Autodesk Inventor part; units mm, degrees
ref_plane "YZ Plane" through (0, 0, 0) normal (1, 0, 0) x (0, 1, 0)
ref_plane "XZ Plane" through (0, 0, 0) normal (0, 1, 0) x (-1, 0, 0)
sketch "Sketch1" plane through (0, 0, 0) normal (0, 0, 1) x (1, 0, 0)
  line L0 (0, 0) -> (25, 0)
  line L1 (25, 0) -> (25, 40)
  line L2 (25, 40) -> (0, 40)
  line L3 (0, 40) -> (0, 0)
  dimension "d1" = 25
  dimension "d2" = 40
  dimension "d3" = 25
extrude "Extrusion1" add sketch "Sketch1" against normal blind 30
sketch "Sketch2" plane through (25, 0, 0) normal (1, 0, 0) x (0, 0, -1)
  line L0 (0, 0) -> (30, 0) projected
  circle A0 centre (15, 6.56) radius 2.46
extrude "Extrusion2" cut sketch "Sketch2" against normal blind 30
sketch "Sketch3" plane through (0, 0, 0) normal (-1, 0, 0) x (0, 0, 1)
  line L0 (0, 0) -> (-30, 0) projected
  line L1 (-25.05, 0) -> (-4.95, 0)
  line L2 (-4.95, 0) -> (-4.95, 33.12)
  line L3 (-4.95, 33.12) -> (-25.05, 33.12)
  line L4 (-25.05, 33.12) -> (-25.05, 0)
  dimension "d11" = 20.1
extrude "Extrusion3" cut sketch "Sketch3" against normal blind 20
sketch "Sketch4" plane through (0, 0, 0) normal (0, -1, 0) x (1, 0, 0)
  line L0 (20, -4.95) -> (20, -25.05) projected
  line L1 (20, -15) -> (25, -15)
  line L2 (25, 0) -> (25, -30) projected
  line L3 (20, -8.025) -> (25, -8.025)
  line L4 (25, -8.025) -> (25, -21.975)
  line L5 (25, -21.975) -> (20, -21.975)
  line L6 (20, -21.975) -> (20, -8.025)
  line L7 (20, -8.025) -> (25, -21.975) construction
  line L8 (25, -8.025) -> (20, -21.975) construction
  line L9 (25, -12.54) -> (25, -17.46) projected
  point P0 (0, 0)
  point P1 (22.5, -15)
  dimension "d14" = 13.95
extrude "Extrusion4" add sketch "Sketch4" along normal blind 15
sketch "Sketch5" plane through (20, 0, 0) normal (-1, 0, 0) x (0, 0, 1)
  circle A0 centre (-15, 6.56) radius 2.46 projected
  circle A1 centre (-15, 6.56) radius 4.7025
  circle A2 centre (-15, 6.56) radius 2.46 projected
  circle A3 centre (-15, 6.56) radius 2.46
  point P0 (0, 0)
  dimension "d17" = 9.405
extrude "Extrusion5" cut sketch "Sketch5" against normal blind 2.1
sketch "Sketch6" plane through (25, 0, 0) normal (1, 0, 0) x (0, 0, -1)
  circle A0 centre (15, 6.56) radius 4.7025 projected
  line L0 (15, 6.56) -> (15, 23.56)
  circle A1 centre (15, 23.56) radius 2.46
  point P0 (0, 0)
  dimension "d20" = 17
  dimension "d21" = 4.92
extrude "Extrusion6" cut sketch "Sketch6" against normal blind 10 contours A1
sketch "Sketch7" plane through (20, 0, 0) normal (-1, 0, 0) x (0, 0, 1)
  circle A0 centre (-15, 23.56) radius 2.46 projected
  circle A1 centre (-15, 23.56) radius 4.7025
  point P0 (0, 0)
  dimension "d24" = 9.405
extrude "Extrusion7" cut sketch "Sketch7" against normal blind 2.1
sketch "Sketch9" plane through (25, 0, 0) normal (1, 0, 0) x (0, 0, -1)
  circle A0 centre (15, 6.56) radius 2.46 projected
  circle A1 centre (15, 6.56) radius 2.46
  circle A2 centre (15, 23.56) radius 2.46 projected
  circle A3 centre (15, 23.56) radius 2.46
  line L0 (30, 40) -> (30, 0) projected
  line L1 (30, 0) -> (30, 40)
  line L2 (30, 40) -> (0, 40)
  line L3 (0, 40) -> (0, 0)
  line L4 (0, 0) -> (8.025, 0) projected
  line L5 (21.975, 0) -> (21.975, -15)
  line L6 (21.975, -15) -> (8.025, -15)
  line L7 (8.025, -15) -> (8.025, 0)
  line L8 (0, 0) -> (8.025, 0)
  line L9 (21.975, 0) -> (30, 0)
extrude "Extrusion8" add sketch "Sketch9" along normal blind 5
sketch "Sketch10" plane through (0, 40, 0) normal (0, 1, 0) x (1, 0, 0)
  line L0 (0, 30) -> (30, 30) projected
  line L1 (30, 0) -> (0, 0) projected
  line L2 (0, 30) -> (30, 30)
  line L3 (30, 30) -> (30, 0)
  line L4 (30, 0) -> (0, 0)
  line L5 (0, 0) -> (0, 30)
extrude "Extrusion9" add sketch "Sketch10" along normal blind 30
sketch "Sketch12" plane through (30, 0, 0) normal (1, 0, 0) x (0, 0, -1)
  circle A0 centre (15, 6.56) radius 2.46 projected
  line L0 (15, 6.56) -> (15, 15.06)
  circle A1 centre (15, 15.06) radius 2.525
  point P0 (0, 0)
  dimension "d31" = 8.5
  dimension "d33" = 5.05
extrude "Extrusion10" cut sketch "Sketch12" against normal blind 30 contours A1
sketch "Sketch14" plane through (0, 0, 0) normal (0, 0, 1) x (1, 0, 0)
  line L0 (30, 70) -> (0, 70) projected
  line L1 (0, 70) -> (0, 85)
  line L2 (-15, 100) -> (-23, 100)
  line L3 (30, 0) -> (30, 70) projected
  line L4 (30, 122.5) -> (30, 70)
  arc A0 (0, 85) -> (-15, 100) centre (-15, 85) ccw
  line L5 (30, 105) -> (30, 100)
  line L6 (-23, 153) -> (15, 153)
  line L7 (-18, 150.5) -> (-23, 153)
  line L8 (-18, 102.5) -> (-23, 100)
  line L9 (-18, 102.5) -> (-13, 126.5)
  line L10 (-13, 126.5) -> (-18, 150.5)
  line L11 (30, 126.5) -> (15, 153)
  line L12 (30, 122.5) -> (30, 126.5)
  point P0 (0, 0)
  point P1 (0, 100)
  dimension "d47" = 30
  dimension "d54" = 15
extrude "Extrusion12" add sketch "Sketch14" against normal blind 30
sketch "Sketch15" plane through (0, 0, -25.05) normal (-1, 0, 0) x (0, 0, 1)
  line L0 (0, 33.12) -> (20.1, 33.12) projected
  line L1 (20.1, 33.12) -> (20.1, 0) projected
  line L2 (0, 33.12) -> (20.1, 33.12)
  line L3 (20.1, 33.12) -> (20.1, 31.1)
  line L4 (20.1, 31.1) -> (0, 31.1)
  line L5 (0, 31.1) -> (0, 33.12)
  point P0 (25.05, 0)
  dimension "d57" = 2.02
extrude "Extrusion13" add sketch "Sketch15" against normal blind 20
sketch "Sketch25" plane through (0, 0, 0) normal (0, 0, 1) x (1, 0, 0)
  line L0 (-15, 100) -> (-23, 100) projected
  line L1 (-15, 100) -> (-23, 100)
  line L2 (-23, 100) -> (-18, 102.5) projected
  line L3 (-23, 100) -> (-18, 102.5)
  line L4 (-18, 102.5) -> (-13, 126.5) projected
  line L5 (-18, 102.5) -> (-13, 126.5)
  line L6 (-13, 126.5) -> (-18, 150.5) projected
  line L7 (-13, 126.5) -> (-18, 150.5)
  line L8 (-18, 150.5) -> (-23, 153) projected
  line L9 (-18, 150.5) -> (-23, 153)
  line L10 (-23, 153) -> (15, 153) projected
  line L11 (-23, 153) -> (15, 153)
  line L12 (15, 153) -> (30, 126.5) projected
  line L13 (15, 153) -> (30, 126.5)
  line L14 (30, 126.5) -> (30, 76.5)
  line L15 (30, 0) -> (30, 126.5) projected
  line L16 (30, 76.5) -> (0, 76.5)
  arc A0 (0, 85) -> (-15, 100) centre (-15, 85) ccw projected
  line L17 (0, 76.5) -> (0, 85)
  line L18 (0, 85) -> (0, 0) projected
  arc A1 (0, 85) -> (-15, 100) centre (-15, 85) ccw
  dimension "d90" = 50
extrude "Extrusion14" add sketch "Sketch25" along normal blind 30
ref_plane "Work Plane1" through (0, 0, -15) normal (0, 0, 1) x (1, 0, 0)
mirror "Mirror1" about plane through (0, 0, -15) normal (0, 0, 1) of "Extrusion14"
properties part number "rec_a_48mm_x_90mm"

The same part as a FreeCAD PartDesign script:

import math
import FreeCAD as App
import Part
import Sketcher

V = App.Vector
Q = App.Units.Quantity

doc = App.newDocument("Part")
params = doc.addObject("Spreadsheet::Sheet", "Params")
for row, (alias, value) in enumerate([
    ("sketch1_width", "25 mm"),
    ("sketch1_height", "40 mm"),
    ("pad1_length", "30 mm"),
    ("sketch2_diameter", "4.92 mm"),
    ("pocket1_length", "30 mm"),
    ("sketch3_height", "20.1 mm"),
    ("sketch3_width", "33.12 mm"),
    ("pocket2_length", "20 mm"),
    ("sketch4_height", "13.95 mm"),
    ("sketch4_width", "5 mm"),
    ("pad2_length", "15 mm"),
    ("sketch5_diameter", "4.92 mm"),
    ("pocket3_length", "2.1 mm"),
    ("sketch6_diameter", "4.92 mm"),
    ("pocket4_length", "10 mm"),
    ("sketch7_diameter", "4.92 mm"),
    ("pocket5_length", "2.1 mm"),
    ("sketch8_diameter", "4.92 mm"),
    ("sketch8_width", "40 mm"),
    ("sketch8_width2", "15 mm"),
    ("sketch8_height", "30 mm"),
    ("sketch8_height2", "13.95 mm"),
    ("pad3_length", "5 mm"),
    ("sketch9_width", "30 mm"),
    ("pad4_length", "30 mm"),
    ("sketch10_diameter", "5.05 mm"),
    ("pocket6_length", "30 mm"),
    ("sketch11_radius", "15 mm"),
    ("sketch11_width", "30 mm"),
    ("sketch11_height", "15 mm"),
    ("sketch11_width2", "38 mm"),
    ("sketch11_height2", "56.5 mm"),
    ("pad5_length", "30 mm"),
    ("sketch12_width", "2.02 mm"),
    ("sketch12_height", "20.1 mm"),
    ("pad6_length", "20 mm"),
    ("sketch13_height", "50 mm"),
    ("sketch13_radius", "15 mm"),
    ("sketch13_width", "8 mm"),
    ("sketch13_width2", "30 mm"),
    ("sketch13_width3", "38 mm"),
    ("pad7_length", "30 mm"),
], start=1):
    params.set(f"A{row}", alias)
    params.set(f"B{row}", "=" + value)
    params.setAlias(f"B{row}", alias)

body = doc.addObject("PartDesign::Body", "Body")

# Sketch on XY plane
sketch1 = body.newObject("Sketcher::SketchObject", "Sketch")
sketch1.AttachmentSupport = (doc.getObject("XY_Plane"), [""])
sketch1.MapMode = "FlatFace"
sketch1.addGeometry([
    Part.LineSegment(V(0, 40, 0), V(0, 0, 0)),
    Part.LineSegment(V(0, 0, 0), V(25, 0, 0)),
    Part.LineSegment(V(25, 0, 0), V(25, 40, 0)),
    Part.LineSegment(V(25, 40, 0), V(0, 40, 0)),
], False)
sketch1.addConstraint([
    Sketcher.Constraint("Coincident", 0, 2, 1, 1),
    Sketcher.Constraint("Coincident", 1, 2, 2, 1),
    Sketcher.Constraint("Coincident", 2, 2, 3, 1),
    Sketcher.Constraint("Coincident", 3, 2, 0, 1),
    Sketcher.Constraint("Vertical", 0),
    Sketcher.Constraint("Horizontal", 1),
    Sketcher.Constraint("Vertical", 2),
    Sketcher.Constraint("Horizontal", 3),
    Sketcher.Constraint("Coincident", 0, 2, -1, 1),
    Sketcher.Constraint("DistanceX", 1, 1, 1, 2, Q("25 mm")),
    Sketcher.Constraint("DistanceY", 0, 2, 0, 1, Q("40 mm")),
])
sketch1.setExpression("Constraints[9]", "Params.sketch1_width")
sketch1.setExpression("Constraints[10]", "Params.sketch1_height")
pad1 = body.newObject("PartDesign::Pad", "Pad")
pad1.Profile = sketch1
pad1.setExpression("Length", "Params.pad1_length")
pad1.Reversed = True

# Sketch on YZ plane
sketch2 = body.newObject("Sketcher::SketchObject", "Sketch001")
sketch2.AttachmentSupport = (doc.getObject("YZ_Plane"), [""])
sketch2.MapMode = "FlatFace"
sketch2.AttachmentOffset = App.Placement(V(0, 0, 25), App.Rotation())
sketch2.addGeometry(Part.Circle(V(6.6, -15, 0), V(0, 0, 1), 2.5), False)
sketch2.addConstraint([
    Sketcher.Constraint("Diameter", 0, Q("4.92 mm")),
    Sketcher.Constraint("DistanceY", 0, 3, -1, 1, Q("15 mm")),
    Sketcher.Constraint("DistanceX", -1, 1, 0, 3, Q("6.56 mm")),
])
sketch2.setExpression("Constraints[0]", "Params.sketch2_diameter")
pocket1 = body.newObject("PartDesign::Pocket", "Pocket")
pocket1.Profile = sketch2
pocket1.setExpression("Length", "Params.pocket1_length")

# Sketch on YZ plane
sketch3 = body.newObject("Sketcher::SketchObject", "Sketch002")
sketch3.AttachmentSupport = (doc.getObject("YZ_Plane"), [""])
sketch3.MapMode = "FlatFace"
sketch3.addGeometry([
    Part.LineSegment(V(0, -25, 0), V(0, -5, 0)),
    Part.LineSegment(V(0, -5, 0), V(33, -5, 0)),
    Part.LineSegment(V(33, -5, 0), V(33, -25, 0)),
    Part.LineSegment(V(33, -25, 0), V(0, -25, 0)),
], False)
sketch3.addConstraint([
    Sketcher.Constraint("Coincident", 0, 2, 1, 1),
    Sketcher.Constraint("Coincident", 1, 2, 2, 1),
    Sketcher.Constraint("Coincident", 2, 2, 3, 1),
    Sketcher.Constraint("Coincident", 3, 2, 0, 1),
    Sketcher.Constraint("Vertical", 0),
    Sketcher.Constraint("Horizontal", 1),
    Sketcher.Constraint("Vertical", 2),
    Sketcher.Constraint("Horizontal", 3),
    Sketcher.Constraint("PointOnObject", 0, 2, -2),
    Sketcher.Constraint("DistanceY", 0, 1, 0, 2, Q("20.1 mm")),
    Sketcher.Constraint("DistanceX", 1, 1, 1, 2, Q("33.12 mm")),
    Sketcher.Constraint("DistanceY", 0, 2, -1, 1, Q("4.95 mm")),
])
sketch3.setExpression("Constraints[9]", "Params.sketch3_height")
sketch3.setExpression("Constraints[10]", "Params.sketch3_width")
pocket2 = body.newObject("PartDesign::Pocket", "Pocket001")
pocket2.Profile = sketch3
pocket2.setExpression("Length", "Params.pocket2_length")
pocket2.Reversed = True

# Sketch on XZ plane
sketch4 = body.newObject("Sketcher::SketchObject", "Sketch003")
sketch4.AttachmentSupport = (doc.getObject("XZ_Plane"), [""])
sketch4.MapMode = "FlatFace"
sketch4.addGeometry([
    Part.LineSegment(V(25, -8, 0), V(20, -8, 0)),
    Part.LineSegment(V(20, -8, 0), V(20, -22, 0)),
    Part.LineSegment(V(20, -22, 0), V(25, -22, 0)),
    Part.LineSegment(V(25, -22, 0), V(25, -8, 0)),
], False)
sketch4.addConstraint([
    Sketcher.Constraint("Coincident", 0, 2, 1, 1),
    Sketcher.Constraint("Coincident", 1, 2, 2, 1),
    Sketcher.Constraint("Coincident", 2, 2, 3, 1),
    Sketcher.Constraint("Coincident", 3, 2, 0, 1),
    Sketcher.Constraint("Horizontal", 0),
    Sketcher.Constraint("Vertical", 1),
    Sketcher.Constraint("Horizontal", 2),
    Sketcher.Constraint("Vertical", 3),
    Sketcher.Constraint("DistanceY", 1, 2, 1, 1, Q("13.95 mm")),
    Sketcher.Constraint("DistanceX", 0, 2, 0, 1, Q("5 mm")),
    Sketcher.Constraint("DistanceX", -1, 1, 0, 2, Q("20 mm")),
    Sketcher.Constraint("DistanceY", 0, 2, -1, 1, Q("8.025 mm")),
])
sketch4.setExpression("Constraints[8]", "Params.sketch4_height")
sketch4.setExpression("Constraints[9]", "Params.sketch4_width")
pad2 = body.newObject("PartDesign::Pad", "Pad001")
pad2.Profile = sketch4
pad2.setExpression("Length", "Params.pad2_length")

# Sketch on YZ plane
sketch5 = body.newObject("Sketcher::SketchObject", "Sketch004")
sketch5.AttachmentSupport = (doc.getObject("YZ_Plane"), [""])
sketch5.MapMode = "FlatFace"
sketch5.AttachmentOffset = App.Placement(V(0, 0, 20), App.Rotation())
sketch5.addGeometry([
    Part.Circle(V(6.6, -15, 0), V(0, 0, 1), 4.7),
    Part.Circle(V(6.6, -15, 0), V(0, 0, 1), 2.5),
], False)
sketch5.addConstraint([
    Sketcher.Constraint("Coincident", 1, 3, 0, 3),
    Sketcher.Constraint("Diameter", 0, Q("9.405 mm")),
    Sketcher.Constraint("Diameter", 1, Q("4.92 mm")),
    Sketcher.Constraint("DistanceY", 0, 3, -1, 1, Q("15 mm")),
    Sketcher.Constraint("DistanceX", -1, 1, 0, 3, Q("6.56 mm")),
])
sketch5.setExpression("Constraints[2]", "Params.sketch5_diameter")
pocket3 = body.newObject("PartDesign::Pocket", "Pocket002")
pocket3.Profile = sketch5
pocket3.setExpression("Length", "Params.pocket3_length")
pocket3.Reversed = True

# Sketch on YZ plane
sketch6 = body.newObject("Sketcher::SketchObject", "Sketch005")
sketch6.AttachmentSupport = (doc.getObject("YZ_Plane"), [""])
sketch6.MapMode = "FlatFace"
sketch6.AttachmentOffset = App.Placement(V(0, 0, 25), App.Rotation())
sketch6.addGeometry(Part.Circle(V(23.6, -15, 0), V(0, 0, 1), 2.5), False)
sketch6.addConstraint([
    Sketcher.Constraint("Diameter", 0, Q("4.92 mm")),
    Sketcher.Constraint("DistanceY", 0, 3, -1, 1, Q("15 mm")),
    Sketcher.Constraint("DistanceX", -1, 1, 0, 3, Q("23.56 mm")),
])
sketch6.setExpression("Constraints[0]", "Params.sketch6_diameter")
pocket4 = body.newObject("PartDesign::Pocket", "Pocket003")
pocket4.Profile = sketch6
pocket4.setExpression("Length", "Params.pocket4_length")

# Sketch on YZ plane
sketch7 = body.newObject("Sketcher::SketchObject", "Sketch006")
sketch7.AttachmentSupport = (doc.getObject("YZ_Plane"), [""])
sketch7.MapMode = "FlatFace"
sketch7.AttachmentOffset = App.Placement(V(0, 0, 20), App.Rotation())
sketch7.addGeometry([
    Part.Circle(V(23.6, -15, 0), V(0, 0, 1), 4.7),
    Part.Circle(V(23.6, -15, 0), V(0, 0, 1), 2.5),
], False)
sketch7.addConstraint([
    Sketcher.Constraint("Coincident", 1, 3, 0, 3),
    Sketcher.Constraint("Diameter", 0, Q("9.405 mm")),
    Sketcher.Constraint("Diameter", 1, Q("4.92 mm")),
    Sketcher.Constraint("DistanceY", 0, 3, -1, 1, Q("15 mm")),
    Sketcher.Constraint("DistanceX", -1, 1, 0, 3, Q("23.56 mm")),
])
sketch7.setExpression("Constraints[2]", "Params.sketch7_diameter")
pocket5 = body.newObject("PartDesign::Pocket", "Pocket004")
pocket5.Profile = sketch7
pocket5.setExpression("Length", "Params.pocket5_length")
pocket5.Reversed = True

# Sketch on YZ plane
sketch8 = body.newObject("Sketcher::SketchObject", "Sketch007")
sketch8.AttachmentSupport = (doc.getObject("YZ_Plane"), [""])
sketch8.MapMode = "FlatFace"
sketch8.AttachmentOffset = App.Placement(V(0, 0, 25), App.Rotation())
sketch8.addGeometry([
    Part.LineSegment(V(0, -30, 0), V(40, -30, 0)),  # 0
    Part.LineSegment(V(40, -30, 0), V(40, 0, 0)),  # 1
    Part.LineSegment(V(40, 0, 0), V(0, 0, 0)),  # 2
    Part.LineSegment(V(0, 0, 0), V(0, -8, 0)),  # 3
    Part.LineSegment(V(0, -8, 0), V(-15, -8, 0)),  # 4
    Part.LineSegment(V(-15, -8, 0), V(-15, -22, 0)),  # 5
    Part.LineSegment(V(-15, -22, 0), V(0, -22, 0)),  # 6
    Part.LineSegment(V(0, -22, 0), V(0, -30, 0)),  # 7
    Part.Circle(V(6.6, -15, 0), V(0, 0, 1), 2.5),  # 8
    Part.Circle(V(23.6, -15, 0), V(0, 0, 1), 2.5),  # 9
], False)
sketch8.addConstraint([
    Sketcher.Constraint("Coincident", 0, 2, 1, 1),
    Sketcher.Constraint("Coincident", 1, 2, 2, 1),
    Sketcher.Constraint("Coincident", 2, 2, 3, 1),
    Sketcher.Constraint("Coincident", 3, 2, 4, 1),
    Sketcher.Constraint("Coincident", 4, 2, 5, 1),
    Sketcher.Constraint("Coincident", 5, 2, 6, 1),
    Sketcher.Constraint("Coincident", 6, 2, 7, 1),
    Sketcher.Constraint("Coincident", 7, 2, 0, 1),
    Sketcher.Constraint("Horizontal", 0),
    Sketcher.Constraint("Vertical", 1),
    Sketcher.Constraint("Horizontal", 2),
    Sketcher.Constraint("Vertical", 3),
    Sketcher.Constraint("Horizontal", 4),
    Sketcher.Constraint("Vertical", 5),
    Sketcher.Constraint("Horizontal", 6),
    Sketcher.Constraint("Vertical", 7),
    Sketcher.Constraint("Coincident", 2, 2, -1, 1),
    Sketcher.Constraint("Equal", 8, 9),
    Sketcher.Constraint("PointOnObject", 6, 2, -2),
    Sketcher.Constraint("Horizontal", 8, 3, 9, 3),
    Sketcher.Constraint("Equal", 3, 7),
    Sketcher.Constraint("Diameter", 8, Q("4.92 mm")),
    Sketcher.Constraint("DistanceX", 0, 1, 0, 2, Q("40 mm")),
    Sketcher.Constraint("DistanceX", 4, 2, 4, 1, Q("15 mm")),
    Sketcher.Constraint("DistanceY", 1, 1, 1, 2, Q("30 mm")),
    Sketcher.Constraint("DistanceY", 8, 3, -1, 1, Q("15 mm")),
    Sketcher.Constraint("DistanceX", 8, 3, 9, 3, Q("17 mm")),
    Sketcher.Constraint("DistanceY", 5, 2, 5, 1, Q("13.95 mm")),
    Sketcher.Constraint("DistanceX", -1, 1, 8, 3, Q("6.56 mm")),
])
sketch8.setExpression("Constraints[21]", "Params.sketch8_diameter")
sketch8.setExpression("Constraints[22]", "Params.sketch8_width")
sketch8.setExpression("Constraints[23]", "Params.sketch8_width2")
sketch8.setExpression("Constraints[24]", "Params.sketch8_height")
sketch8.setExpression("Constraints[27]", "Params.sketch8_height2")
pad3 = body.newObject("PartDesign::Pad", "Pad002")
pad3.Profile = sketch8
pad3.setExpression("Length", "Params.pad3_length")

# Sketch on XZ plane
sketch9 = body.newObject("Sketcher::SketchObject", "Sketch008")
sketch9.AttachmentSupport = (doc.getObject("XZ_Plane"), [""])
sketch9.MapMode = "FlatFace"
sketch9.AttachmentOffset = App.Placement(V(0, 0, -40), App.Rotation())
sketch9.addGeometry([
    Part.LineSegment(V(30, -30, 0), V(0, -30, 0)),
    Part.LineSegment(V(0, -30, 0), V(0, 0, 0)),
    Part.LineSegment(V(0, 0, 0), V(30, 0, 0)),
    Part.LineSegment(V(30, 0, 0), V(30, -30, 0)),
], False)
sketch9.addConstraint([
    Sketcher.Constraint("Coincident", 0, 2, 1, 1),
    Sketcher.Constraint("Coincident", 1, 2, 2, 1),
    Sketcher.Constraint("Coincident", 2, 2, 3, 1),
    Sketcher.Constraint("Coincident", 3, 2, 0, 1),
    Sketcher.Constraint("Horizontal", 0),
    Sketcher.Constraint("Vertical", 1),
    Sketcher.Constraint("Horizontal", 2),
    Sketcher.Constraint("Vertical", 3),
    Sketcher.Constraint("Coincident", 1, 2, -1, 1),
    Sketcher.Constraint("Equal", 2, 1),
    Sketcher.Constraint("DistanceX", 0, 2, 0, 1, Q("30 mm")),
])
sketch9.setExpression("Constraints[10]", "Params.sketch9_width")
pad4 = body.newObject("PartDesign::Pad", "Pad003")
pad4.Profile = sketch9
pad4.setExpression("Length", "Params.pad4_length")
pad4.Reversed = True

# Sketch on YZ plane
sketch10 = body.newObject("Sketcher::SketchObject", "Sketch009")
sketch10.AttachmentSupport = (doc.getObject("YZ_Plane"), [""])
sketch10.MapMode = "FlatFace"
sketch10.AttachmentOffset = App.Placement(V(0, 0, 30), App.Rotation())
sketch10.addGeometry(Part.Circle(V(15.1, -15, 0), V(0, 0, 1), 2.5), False)
sketch10.addConstraint([
    Sketcher.Constraint("Diameter", 0, Q("5.05 mm")),
    Sketcher.Constraint("DistanceY", 0, 3, -1, 1, Q("15 mm")),
    Sketcher.Constraint("DistanceX", -1, 1, 0, 3, Q("15.06 mm")),
])
sketch10.setExpression("Constraints[0]", "Params.sketch10_diameter")
pocket6 = body.newObject("PartDesign::Pocket", "Pocket005")
pocket6.Profile = sketch10
pocket6.setExpression("Length", "Params.pocket6_length")

# Sketch on XY plane
sketch11 = body.newObject("Sketcher::SketchObject", "Sketch010")
sketch11.AttachmentSupport = (doc.getObject("XY_Plane"), [""])
sketch11.MapMode = "FlatFace"
sketch11.addGeometry([
    Part.LineSegment(V(0, 70, 0), V(30, 70, 0)),  # 0
    Part.LineSegment(V(30, 70, 0), V(30, 126, 0)),  # 1
    Part.LineSegment(V(30, 126, 0), V(15, 153, 0)),  # 2
    Part.LineSegment(V(15, 153, 0), V(-23, 153, 0)),  # 3
    Part.LineSegment(V(-23, 153, 0), V(-18, 150, 0)),  # 4
    Part.LineSegment(V(-18, 150, 0), V(-13, 126, 0)),  # 5
    Part.LineSegment(V(-13, 126, 0), V(-18, 102, 0)),  # 6
    Part.LineSegment(V(-18, 102, 0), V(-23, 100, 0)),  # 7
    Part.LineSegment(V(-23, 100, 0), V(-15, 100, 0)),  # 8
    Part.ArcOfCircle(Part.Circle(V(-15, 85, 0), V(0, 0, 1), 15), math.radians(0), math.radians(90)),  # 9
    Part.LineSegment(V(0, 85, 0), V(0, 70, 0)),  # 10
], False)
sketch11.addConstraint([
    Sketcher.Constraint("Coincident", 0, 2, 1, 1),
    Sketcher.Constraint("Coincident", 1, 2, 2, 1),
    Sketcher.Constraint("Coincident", 2, 2, 3, 1),
    Sketcher.Constraint("Coincident", 3, 2, 4, 1),
    Sketcher.Constraint("Coincident", 4, 2, 5, 1),
    Sketcher.Constraint("Coincident", 5, 2, 6, 1),
    Sketcher.Constraint("Coincident", 6, 2, 7, 1),
    Sketcher.Constraint("Coincident", 7, 2, 8, 1),
    Sketcher.Constraint("Tangent", 8, 2, 9, 2),
    Sketcher.Constraint("Tangent", 9, 1, 10, 1),
    Sketcher.Constraint("Coincident", 10, 2, 0, 1),
    Sketcher.Constraint("Horizontal", 0),
    Sketcher.Constraint("Vertical", 1),
    Sketcher.Constraint("Horizontal", 3),
    Sketcher.Constraint("Horizontal", 8),
    Sketcher.Constraint("Vertical", 10),
    Sketcher.Constraint("PointOnObject", 9, 1, -2),
    Sketcher.Constraint("Horizontal", 1, 2, 5, 2),
    Sketcher.Constraint("Vertical", 4, 2, 6, 2),
    Sketcher.Constraint("Vertical", 3, 2, 7, 2),
    Sketcher.Constraint("Equal", 5, 6),
    Sketcher.Constraint("Equal", 4, 7),
    Sketcher.Constraint("Radius", 9, Q("15 mm")),
    Sketcher.Constraint("DistanceX", 0, 1, 0, 2, Q("30 mm")),
    Sketcher.Constraint("DistanceY", 10, 2, 10, 1, Q("15 mm")),
    Sketcher.Constraint("DistanceX", -1, 1, 2, 2, Q("15 mm")),
    Sketcher.Constraint("DistanceX", 3, 2, 3, 1, Q("38 mm")),
    Sketcher.Constraint("DistanceY", 1, 1, 1, 2, Q("56.5 mm")),
    Sketcher.Constraint("DistanceY", -1, 1, 9, 3, Q("85 mm")),
    Sketcher.Constraint("DistanceX", 4, 2, -1, 1, Q("18 mm")),
    Sketcher.Constraint("DistanceX", 5, 2, -1, 1, Q("13 mm")),
    Sketcher.Constraint("DistanceY", 1, 2, 4, 2, Q("24 mm")),
])
sketch11.setExpression("Constraints[22]", "Params.sketch11_radius")
sketch11.setExpression("Constraints[23]", "Params.sketch11_width")
sketch11.setExpression("Constraints[24]", "Params.sketch11_height")
sketch11.setExpression("Constraints[26]", "Params.sketch11_width2")
sketch11.setExpression("Constraints[27]", "Params.sketch11_height2")
pad5 = body.newObject("PartDesign::Pad", "Pad004")
pad5.Profile = sketch11
pad5.setExpression("Length", "Params.pad5_length")
pad5.Reversed = True

# Sketch on YZ plane
sketch12 = body.newObject("Sketcher::SketchObject", "Sketch011")
sketch12.AttachmentSupport = (doc.getObject("YZ_Plane"), [""])
sketch12.MapMode = "FlatFace"
sketch12.addGeometry([
    Part.LineSegment(V(33.1, -5, 0), V(33.1, -25.1, 0)),
    Part.LineSegment(V(33.1, -25.1, 0), V(31.1, -25.1, 0)),
    Part.LineSegment(V(31.1, -25.1, 0), V(31.1, -5, 0)),
    Part.LineSegment(V(31.1, -5, 0), V(33.1, -5, 0)),
], False)
sketch12.addConstraint([
    Sketcher.Constraint("Coincident", 0, 2, 1, 1),
    Sketcher.Constraint("Coincident", 1, 2, 2, 1),
    Sketcher.Constraint("Coincident", 2, 2, 3, 1),
    Sketcher.Constraint("Coincident", 3, 2, 0, 1),
    Sketcher.Constraint("Vertical", 0),
    Sketcher.Constraint("Horizontal", 1),
    Sketcher.Constraint("Vertical", 2),
    Sketcher.Constraint("Horizontal", 3),
    Sketcher.Constraint("DistanceX", 1, 2, 1, 1, Q("2.02 mm")),
    Sketcher.Constraint("DistanceY", 0, 2, 0, 1, Q("20.1 mm")),
    Sketcher.Constraint("DistanceX", -1, 1, 1, 2, Q("31.1 mm")),
    Sketcher.Constraint("DistanceY", 0, 2, -1, 1, Q("25.05 mm")),
])
sketch12.setExpression("Constraints[8]", "Params.sketch12_width")
sketch12.setExpression("Constraints[9]", "Params.sketch12_height")
pad6 = body.newObject("PartDesign::Pad", "Pad005")
pad6.Profile = sketch12
pad6.setExpression("Length", "Params.pad6_length")

# Sketch on XY plane
sketch13 = body.newObject("Sketcher::SketchObject", "Sketch012")
sketch13.AttachmentSupport = (doc.getObject("XY_Plane"), [""])
sketch13.MapMode = "FlatFace"
sketch13.addGeometry([
    Part.LineSegment(V(-23, 100, 0), V(-15, 100, 0)),  # 0
    Part.ArcOfCircle(Part.Circle(V(-15, 85, 0), V(0, 0, 1), 15), math.radians(0), math.radians(90)),  # 1
    Part.LineSegment(V(0, 85, 0), V(0, 76, 0)),  # 2
    Part.LineSegment(V(0, 76, 0), V(30, 76, 0)),  # 3
    Part.LineSegment(V(30, 76, 0), V(30, 126, 0)),  # 4
    Part.LineSegment(V(30, 126, 0), V(15, 153, 0)),  # 5
    Part.LineSegment(V(15, 153, 0), V(-23, 153, 0)),  # 6
    Part.LineSegment(V(-23, 153, 0), V(-18, 150, 0)),  # 7
    Part.LineSegment(V(-18, 150, 0), V(-13, 126, 0)),  # 8
    Part.LineSegment(V(-13, 126, 0), V(-18, 102, 0)),  # 9
    Part.LineSegment(V(-18, 102, 0), V(-23, 100, 0)),  # 10
], False)
sketch13.addConstraint([
    Sketcher.Constraint("Tangent", 0, 2, 1, 2),
    Sketcher.Constraint("Tangent", 1, 1, 2, 1),
    Sketcher.Constraint("Coincident", 2, 2, 3, 1),
    Sketcher.Constraint("Coincident", 3, 2, 4, 1),
    Sketcher.Constraint("Coincident", 4, 2, 5, 1),
    Sketcher.Constraint("Coincident", 5, 2, 6, 1),
    Sketcher.Constraint("Coincident", 6, 2, 7, 1),
    Sketcher.Constraint("Coincident", 7, 2, 8, 1),
    Sketcher.Constraint("Coincident", 8, 2, 9, 1),
    Sketcher.Constraint("Coincident", 9, 2, 10, 1),
    Sketcher.Constraint("Coincident", 10, 2, 0, 1),
    Sketcher.Constraint("Horizontal", 0),
    Sketcher.Constraint("Vertical", 2),
    Sketcher.Constraint("Horizontal", 3),
    Sketcher.Constraint("Vertical", 4),
    Sketcher.Constraint("Horizontal", 6),
    Sketcher.Constraint("PointOnObject", 1, 1, -2),
    Sketcher.Constraint("Horizontal", 4, 2, 8, 2),
    Sketcher.Constraint("Vertical", 7, 2, 9, 2),
    Sketcher.Constraint("Vertical", 6, 2, 10, 2),
    Sketcher.Constraint("Equal", 8, 9),
    Sketcher.Constraint("Equal", 7, 10),
    Sketcher.Constraint("DistanceY", 4, 1, 4, 2, Q("50 mm")),
    Sketcher.Constraint("Radius", 1, Q("15 mm")),
    Sketcher.Constraint("DistanceX", 0, 1, 0, 2, Q("8 mm")),
    Sketcher.Constraint("DistanceX", 3, 1, 3, 2, Q("30 mm")),
    Sketcher.Constraint("DistanceX", 6, 2, 6, 1, Q("38 mm")),
    Sketcher.Constraint("DistanceY", 2, 2, 2, 1, Q("8.5 mm")),
    Sketcher.Constraint("DistanceY", -1, 1, 1, 3, Q("85 mm")),
    Sketcher.Constraint("DistanceX", 7, 2, -1, 1, Q("18 mm")),
    Sketcher.Constraint("DistanceX", 8, 2, -1, 1, Q("13 mm")),
    Sketcher.Constraint("DistanceY", 4, 2, 7, 2, Q("24 mm")),
])
sketch13.setExpression("Constraints[22]", "Params.sketch13_height")
sketch13.setExpression("Constraints[23]", "Params.sketch13_radius")
sketch13.setExpression("Constraints[24]", "Params.sketch13_width")
sketch13.setExpression("Constraints[25]", "Params.sketch13_width2")
sketch13.setExpression("Constraints[26]", "Params.sketch13_width3")
pad7 = body.newObject("PartDesign::Pad", "Pad006")
pad7.Profile = sketch13
pad7.setExpression("Length", "Params.pad7_length")
doc.recompute()

datumplane = body.newObject("PartDesign::Plane", "DatumPlane")
datumplane.AttachmentSupport = (doc.getObject("XY_Plane"), [""])
datumplane.MapMode = "FlatFace"
datumplane.AttachmentOffset = App.Placement(V(0, 0, -15), App.Rotation())
mirrored = body.newObject("PartDesign::Mirrored", "Mirrored")
mirrored.Originals = [pad7]
mirrored.MirrorPlane = (datumplane, [""])
body.Tip = mirrored

doc.recompute()
